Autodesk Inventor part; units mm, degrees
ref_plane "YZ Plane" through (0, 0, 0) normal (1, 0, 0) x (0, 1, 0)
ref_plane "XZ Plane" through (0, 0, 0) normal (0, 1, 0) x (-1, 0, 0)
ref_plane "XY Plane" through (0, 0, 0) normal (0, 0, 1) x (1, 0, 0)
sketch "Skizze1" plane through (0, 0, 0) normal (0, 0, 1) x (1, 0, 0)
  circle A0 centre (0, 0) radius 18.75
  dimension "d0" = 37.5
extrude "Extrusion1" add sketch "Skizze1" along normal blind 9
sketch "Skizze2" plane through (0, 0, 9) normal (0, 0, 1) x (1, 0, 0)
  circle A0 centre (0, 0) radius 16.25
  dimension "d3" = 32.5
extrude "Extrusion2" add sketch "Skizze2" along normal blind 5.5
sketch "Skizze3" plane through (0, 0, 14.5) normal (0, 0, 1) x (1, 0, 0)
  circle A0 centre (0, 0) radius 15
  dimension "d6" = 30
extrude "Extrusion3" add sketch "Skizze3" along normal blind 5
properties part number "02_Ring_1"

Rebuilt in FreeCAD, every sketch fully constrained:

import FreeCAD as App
import Part
import Sketcher

V = App.Vector

doc = App.newDocument("Part")
body = doc.addObject("PartDesign::Body", "Body")

# Sketch on XY plane
sketch1 = doc.addObject("Sketcher::SketchObject", "Sketch")
body.addObject(sketch1)
sketch1.AttachmentSupport = (doc.XY_Plane, [""])
sketch1.MapMode = "FlatFace"
sketch1.addGeometry(Part.Circle(V(0, 0, 0), V(0, 0, 1), 19), False)
sketch1.addConstraint([
    Sketcher.Constraint("Coincident", 0, 3, -1, 1),
    Sketcher.Constraint("Diameter", 0, 37.5),
])
pad1 = doc.addObject("PartDesign::Pad", "Pad")
body.addObject(pad1)
pad1.Profile = sketch1
pad1.Length = 9

# Sketch on XY plane
sketch2 = doc.addObject("Sketcher::SketchObject", "Sketch001")
body.addObject(sketch2)
sketch2.AttachmentSupport = (doc.XY_Plane, [""])
sketch2.MapMode = "FlatFace"
sketch2.AttachmentOffset = App.Placement(V(0, 0, 9), App.Rotation())
sketch2.addGeometry(Part.Circle(V(0, 0, 0), V(0, 0, 1), 16), False)
sketch2.addConstraint([
    Sketcher.Constraint("Coincident", 0, 3, -1, 1),
    Sketcher.Constraint("Diameter", 0, 32.5),
])
pad2 = doc.addObject("PartDesign::Pad", "Pad001")
body.addObject(pad2)
pad2.Profile = sketch2
pad2.Length = 5.5

# Sketch on XY plane
sketch3 = doc.addObject("Sketcher::SketchObject", "Sketch002")
body.addObject(sketch3)
sketch3.AttachmentSupport = (doc.XY_Plane, [""])
sketch3.MapMode = "FlatFace"
sketch3.AttachmentOffset = App.Placement(V(0, 0, 14.5), App.Rotation())
sketch3.addGeometry(Part.Circle(V(0, 0, 0), V(0, 0, 1), 15), False)
sketch3.addConstraint([
    Sketcher.Constraint("Coincident", 0, 3, -1, 1),
    Sketcher.Constraint("Diameter", 0, 30.0),
])
pad3 = doc.addObject("PartDesign::Pad", "Pad002")
body.addObject(pad3)
pad3.Profile = sketch3
pad3.Length = 5

doc.recompute()
